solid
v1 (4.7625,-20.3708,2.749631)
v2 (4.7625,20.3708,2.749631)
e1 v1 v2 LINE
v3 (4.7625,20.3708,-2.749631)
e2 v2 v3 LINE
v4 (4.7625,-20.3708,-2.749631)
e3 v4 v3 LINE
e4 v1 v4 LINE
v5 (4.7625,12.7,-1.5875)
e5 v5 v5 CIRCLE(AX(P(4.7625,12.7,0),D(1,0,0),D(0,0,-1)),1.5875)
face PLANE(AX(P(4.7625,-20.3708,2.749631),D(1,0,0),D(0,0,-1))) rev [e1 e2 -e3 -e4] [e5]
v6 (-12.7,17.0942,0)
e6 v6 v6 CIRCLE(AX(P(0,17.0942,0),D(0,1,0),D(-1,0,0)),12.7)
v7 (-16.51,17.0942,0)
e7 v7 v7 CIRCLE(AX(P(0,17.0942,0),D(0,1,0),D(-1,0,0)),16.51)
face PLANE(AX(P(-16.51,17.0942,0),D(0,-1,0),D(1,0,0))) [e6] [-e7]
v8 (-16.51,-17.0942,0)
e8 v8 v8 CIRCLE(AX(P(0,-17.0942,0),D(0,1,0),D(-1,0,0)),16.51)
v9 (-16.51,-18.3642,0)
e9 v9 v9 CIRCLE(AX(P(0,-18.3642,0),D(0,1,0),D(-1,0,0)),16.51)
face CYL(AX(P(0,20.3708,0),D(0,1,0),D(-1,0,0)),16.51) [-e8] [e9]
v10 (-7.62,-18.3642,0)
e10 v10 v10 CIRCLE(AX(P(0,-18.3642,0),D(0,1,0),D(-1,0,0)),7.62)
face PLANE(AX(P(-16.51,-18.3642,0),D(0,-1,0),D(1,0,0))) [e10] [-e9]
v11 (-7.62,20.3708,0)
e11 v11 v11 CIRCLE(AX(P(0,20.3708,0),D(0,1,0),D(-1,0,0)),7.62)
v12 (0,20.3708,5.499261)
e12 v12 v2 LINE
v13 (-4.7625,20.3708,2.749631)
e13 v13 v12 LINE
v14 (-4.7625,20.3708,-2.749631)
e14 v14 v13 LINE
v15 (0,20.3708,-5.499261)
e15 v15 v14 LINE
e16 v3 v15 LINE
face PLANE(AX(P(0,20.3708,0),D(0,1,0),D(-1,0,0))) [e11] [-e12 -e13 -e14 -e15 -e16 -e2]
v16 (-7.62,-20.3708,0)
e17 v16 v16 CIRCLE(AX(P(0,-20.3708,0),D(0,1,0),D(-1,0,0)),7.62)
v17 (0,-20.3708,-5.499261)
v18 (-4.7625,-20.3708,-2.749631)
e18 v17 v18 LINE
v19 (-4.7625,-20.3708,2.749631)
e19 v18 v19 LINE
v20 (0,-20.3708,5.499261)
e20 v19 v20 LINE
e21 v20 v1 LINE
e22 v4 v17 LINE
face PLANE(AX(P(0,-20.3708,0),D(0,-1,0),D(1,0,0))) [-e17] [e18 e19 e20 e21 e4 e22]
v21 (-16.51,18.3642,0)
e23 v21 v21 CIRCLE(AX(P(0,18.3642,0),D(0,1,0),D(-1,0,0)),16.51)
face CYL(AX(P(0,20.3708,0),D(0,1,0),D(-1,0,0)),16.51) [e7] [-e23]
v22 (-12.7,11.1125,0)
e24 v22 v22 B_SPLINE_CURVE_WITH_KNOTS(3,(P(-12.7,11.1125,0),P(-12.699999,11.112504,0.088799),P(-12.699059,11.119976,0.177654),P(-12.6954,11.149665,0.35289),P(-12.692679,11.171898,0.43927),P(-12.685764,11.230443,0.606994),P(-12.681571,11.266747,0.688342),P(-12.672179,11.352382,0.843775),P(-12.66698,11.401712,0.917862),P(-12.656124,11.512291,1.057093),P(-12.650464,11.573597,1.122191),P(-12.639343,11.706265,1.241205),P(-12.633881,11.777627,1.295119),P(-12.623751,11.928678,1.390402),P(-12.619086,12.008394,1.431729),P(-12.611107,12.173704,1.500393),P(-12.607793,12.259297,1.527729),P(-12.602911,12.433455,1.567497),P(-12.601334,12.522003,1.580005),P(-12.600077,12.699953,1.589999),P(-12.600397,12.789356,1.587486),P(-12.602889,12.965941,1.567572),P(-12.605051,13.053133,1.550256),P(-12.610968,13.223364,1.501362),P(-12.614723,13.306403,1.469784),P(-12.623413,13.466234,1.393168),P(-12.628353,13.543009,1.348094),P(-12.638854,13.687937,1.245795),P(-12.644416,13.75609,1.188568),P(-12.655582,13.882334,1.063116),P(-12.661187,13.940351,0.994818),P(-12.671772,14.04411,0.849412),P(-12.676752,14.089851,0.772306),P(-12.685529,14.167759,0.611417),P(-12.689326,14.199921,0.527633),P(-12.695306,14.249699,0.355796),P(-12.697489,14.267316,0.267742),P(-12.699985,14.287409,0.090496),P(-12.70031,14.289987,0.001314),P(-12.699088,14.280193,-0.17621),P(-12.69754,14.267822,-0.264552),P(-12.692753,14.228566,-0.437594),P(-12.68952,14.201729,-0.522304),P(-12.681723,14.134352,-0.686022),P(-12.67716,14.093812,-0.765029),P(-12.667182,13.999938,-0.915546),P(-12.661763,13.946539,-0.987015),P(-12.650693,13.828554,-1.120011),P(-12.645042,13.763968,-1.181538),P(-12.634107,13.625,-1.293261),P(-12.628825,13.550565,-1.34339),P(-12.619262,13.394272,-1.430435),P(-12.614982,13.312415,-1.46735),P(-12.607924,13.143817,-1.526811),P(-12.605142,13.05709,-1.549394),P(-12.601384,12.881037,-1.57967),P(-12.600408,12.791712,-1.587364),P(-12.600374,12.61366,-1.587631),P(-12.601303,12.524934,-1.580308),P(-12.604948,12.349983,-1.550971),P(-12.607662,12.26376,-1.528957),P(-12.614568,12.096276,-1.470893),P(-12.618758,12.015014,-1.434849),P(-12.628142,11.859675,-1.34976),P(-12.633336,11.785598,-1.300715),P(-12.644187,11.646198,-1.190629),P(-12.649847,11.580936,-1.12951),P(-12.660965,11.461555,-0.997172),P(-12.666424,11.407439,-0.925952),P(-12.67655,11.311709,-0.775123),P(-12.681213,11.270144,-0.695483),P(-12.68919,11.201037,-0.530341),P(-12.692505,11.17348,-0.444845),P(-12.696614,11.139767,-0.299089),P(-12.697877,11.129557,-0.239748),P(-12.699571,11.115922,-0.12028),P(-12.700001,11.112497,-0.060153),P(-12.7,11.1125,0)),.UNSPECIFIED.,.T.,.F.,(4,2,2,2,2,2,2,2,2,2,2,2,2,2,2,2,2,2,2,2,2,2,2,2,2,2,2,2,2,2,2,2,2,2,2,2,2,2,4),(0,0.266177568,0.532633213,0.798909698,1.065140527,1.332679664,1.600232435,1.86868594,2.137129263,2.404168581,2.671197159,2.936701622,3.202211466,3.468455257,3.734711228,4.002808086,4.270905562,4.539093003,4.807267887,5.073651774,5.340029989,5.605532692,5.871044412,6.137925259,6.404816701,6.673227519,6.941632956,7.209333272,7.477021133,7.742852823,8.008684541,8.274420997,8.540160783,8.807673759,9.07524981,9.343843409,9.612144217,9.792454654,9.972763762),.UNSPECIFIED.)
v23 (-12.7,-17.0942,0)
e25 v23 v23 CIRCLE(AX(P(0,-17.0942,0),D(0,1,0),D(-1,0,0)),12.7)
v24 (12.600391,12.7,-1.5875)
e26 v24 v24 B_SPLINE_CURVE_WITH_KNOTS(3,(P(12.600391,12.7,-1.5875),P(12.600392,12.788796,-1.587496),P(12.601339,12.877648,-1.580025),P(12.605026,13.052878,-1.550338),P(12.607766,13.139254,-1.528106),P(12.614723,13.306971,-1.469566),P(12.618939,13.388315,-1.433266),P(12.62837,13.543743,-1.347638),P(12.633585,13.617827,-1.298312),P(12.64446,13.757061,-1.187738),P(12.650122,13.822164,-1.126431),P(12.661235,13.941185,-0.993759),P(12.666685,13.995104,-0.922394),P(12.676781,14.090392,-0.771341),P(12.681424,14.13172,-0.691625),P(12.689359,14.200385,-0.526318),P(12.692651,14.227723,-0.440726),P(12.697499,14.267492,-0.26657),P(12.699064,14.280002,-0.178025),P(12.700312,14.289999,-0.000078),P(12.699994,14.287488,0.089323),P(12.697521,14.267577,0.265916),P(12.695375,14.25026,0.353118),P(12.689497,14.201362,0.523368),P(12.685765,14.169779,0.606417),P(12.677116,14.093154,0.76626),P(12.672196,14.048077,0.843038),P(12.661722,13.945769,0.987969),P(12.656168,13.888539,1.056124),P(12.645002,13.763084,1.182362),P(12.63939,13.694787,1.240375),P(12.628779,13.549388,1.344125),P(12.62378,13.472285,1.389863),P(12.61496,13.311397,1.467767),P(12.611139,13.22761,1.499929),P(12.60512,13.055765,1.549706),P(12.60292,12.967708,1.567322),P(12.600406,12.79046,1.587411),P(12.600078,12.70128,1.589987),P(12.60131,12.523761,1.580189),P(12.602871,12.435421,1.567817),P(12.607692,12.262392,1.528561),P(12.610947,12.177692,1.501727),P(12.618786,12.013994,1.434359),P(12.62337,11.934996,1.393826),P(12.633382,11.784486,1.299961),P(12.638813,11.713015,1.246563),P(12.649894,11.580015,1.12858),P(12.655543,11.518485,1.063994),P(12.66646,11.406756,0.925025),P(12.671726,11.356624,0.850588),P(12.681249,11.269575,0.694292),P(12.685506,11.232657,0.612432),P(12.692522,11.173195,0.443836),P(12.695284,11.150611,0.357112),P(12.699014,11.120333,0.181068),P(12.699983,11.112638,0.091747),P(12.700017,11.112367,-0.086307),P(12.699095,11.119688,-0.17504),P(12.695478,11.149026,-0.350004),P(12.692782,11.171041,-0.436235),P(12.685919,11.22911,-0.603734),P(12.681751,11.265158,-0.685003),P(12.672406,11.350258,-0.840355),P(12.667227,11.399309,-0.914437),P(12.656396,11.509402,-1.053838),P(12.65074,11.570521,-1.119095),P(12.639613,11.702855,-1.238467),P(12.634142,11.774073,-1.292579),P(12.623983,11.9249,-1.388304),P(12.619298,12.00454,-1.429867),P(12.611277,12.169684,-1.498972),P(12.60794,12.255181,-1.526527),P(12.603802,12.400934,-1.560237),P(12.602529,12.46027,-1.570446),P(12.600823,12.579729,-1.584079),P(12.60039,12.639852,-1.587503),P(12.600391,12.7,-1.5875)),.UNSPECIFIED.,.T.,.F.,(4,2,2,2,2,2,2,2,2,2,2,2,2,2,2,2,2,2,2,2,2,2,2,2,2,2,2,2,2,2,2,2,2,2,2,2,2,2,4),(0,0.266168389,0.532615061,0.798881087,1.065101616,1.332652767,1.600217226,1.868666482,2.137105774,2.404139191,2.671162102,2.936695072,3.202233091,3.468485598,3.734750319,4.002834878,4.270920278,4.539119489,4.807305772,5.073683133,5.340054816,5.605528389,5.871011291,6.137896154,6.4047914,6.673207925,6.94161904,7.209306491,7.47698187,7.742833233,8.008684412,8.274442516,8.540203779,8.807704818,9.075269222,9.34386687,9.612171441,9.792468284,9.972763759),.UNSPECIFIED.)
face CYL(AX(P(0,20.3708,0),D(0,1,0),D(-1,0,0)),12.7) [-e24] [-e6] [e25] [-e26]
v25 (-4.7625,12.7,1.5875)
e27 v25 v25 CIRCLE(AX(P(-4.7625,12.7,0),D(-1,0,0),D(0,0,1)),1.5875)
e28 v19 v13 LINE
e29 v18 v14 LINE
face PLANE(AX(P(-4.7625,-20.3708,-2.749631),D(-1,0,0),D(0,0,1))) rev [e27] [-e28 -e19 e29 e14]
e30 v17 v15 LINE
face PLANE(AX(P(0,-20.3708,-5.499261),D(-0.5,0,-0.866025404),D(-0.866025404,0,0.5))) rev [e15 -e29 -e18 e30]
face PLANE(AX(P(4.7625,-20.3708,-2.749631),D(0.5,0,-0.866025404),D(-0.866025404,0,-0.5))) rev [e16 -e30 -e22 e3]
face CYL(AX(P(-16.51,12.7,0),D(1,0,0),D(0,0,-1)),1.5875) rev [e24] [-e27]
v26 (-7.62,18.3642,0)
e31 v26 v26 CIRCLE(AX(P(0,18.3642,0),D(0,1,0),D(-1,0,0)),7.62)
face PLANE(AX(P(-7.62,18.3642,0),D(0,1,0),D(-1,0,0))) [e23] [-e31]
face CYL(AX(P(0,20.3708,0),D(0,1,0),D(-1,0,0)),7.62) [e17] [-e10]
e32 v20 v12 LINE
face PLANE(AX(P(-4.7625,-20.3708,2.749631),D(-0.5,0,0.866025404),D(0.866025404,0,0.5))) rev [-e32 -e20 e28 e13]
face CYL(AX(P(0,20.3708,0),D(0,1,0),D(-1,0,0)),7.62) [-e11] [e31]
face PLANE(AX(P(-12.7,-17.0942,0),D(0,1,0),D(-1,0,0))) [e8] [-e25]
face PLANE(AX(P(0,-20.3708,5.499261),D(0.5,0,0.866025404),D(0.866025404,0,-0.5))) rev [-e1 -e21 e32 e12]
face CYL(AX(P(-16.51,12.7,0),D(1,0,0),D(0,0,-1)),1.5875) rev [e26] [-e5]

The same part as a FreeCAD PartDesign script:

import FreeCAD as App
import Part
import Sketcher
Q = App.Units.Quantity

doc = App.newDocument("Part")
body = doc.addObject("PartDesign::Body", "Body")

# Sketch on XY plane
sketch1 = body.newObject("Sketcher::SketchObject", "Sketch")
sketch1.AttachmentSupport = (doc.getObject("XY_Plane"), [""])
sketch1.MapMode = "FlatFace"
sketch1.addGeometry([
    Part.LineSegment(App.Vector(-7.6, 18.4, 0), App.Vector(-16.5, 18.4, 0)),  # 0
    Part.LineSegment(App.Vector(-16.5, 18.4, 0), App.Vector(-16.5, 17.1, 0)),  # 1
    Part.LineSegment(App.Vector(-16.5, 17.1, 0), App.Vector(-12.7, 17.1, 0)),  # 2
    Part.LineSegment(App.Vector(-12.7, 17.1, 0), App.Vector(-12.7, -17.1, 0)),  # 3
    Part.LineSegment(App.Vector(-12.7, -17.1, 0), App.Vector(-16.5, -17.1, 0)),  # 4
    Part.LineSegment(App.Vector(-16.5, -17.1, 0), App.Vector(-16.5, -18.4, 0)),  # 5
    Part.LineSegment(App.Vector(-16.5, -18.4, 0), App.Vector(-7.6, -18.4, 0)),  # 6
    Part.LineSegment(App.Vector(-7.6, -18.4, 0), App.Vector(-7.6, -20.4, 0)),  # 7
    Part.LineSegment(App.Vector(-7.6, -20.4, 0), App.Vector(0, -20.4, 0)),  # 8
    Part.LineSegment(App.Vector(0, -20.4, 0), App.Vector(0, 20.4, 0)),  # 9
    Part.LineSegment(App.Vector(0, 20.4, 0), App.Vector(-7.6, 20.4, 0)),  # 10
    Part.LineSegment(App.Vector(-7.6, 20.4, 0), App.Vector(-7.6, 18.4, 0)),  # 11
], False)
sketch1.addConstraint([
    Sketcher.Constraint("Coincident", 0, 2, 1, 1),
    Sketcher.Constraint("Coincident", 1, 2, 2, 1),
    Sketcher.Constraint("Coincident", 2, 2, 3, 1),
    Sketcher.Constraint("Coincident", 3, 2, 4, 1),
    Sketcher.Constraint("Coincident", 4, 2, 5, 1),
    Sketcher.Constraint("Coincident", 5, 2, 6, 1),
    Sketcher.Constraint("Coincident", 6, 2, 7, 1),
    Sketcher.Constraint("Coincident", 7, 2, 8, 1),
    Sketcher.Constraint("Coincident", 8, 2, 9, 1),
    Sketcher.Constraint("Coincident", 9, 2, 10, 1),
    Sketcher.Constraint("Coincident", 10, 2, 11, 1),
    Sketcher.Constraint("Coincident", 11, 2, 0, 1),
    Sketcher.Constraint("Horizontal", 0),
    Sketcher.Constraint("Vertical", 1),
    Sketcher.Constraint("Horizontal", 2),
    Sketcher.Constraint("Vertical", 3),
    Sketcher.Constraint("Horizontal", 4),
    Sketcher.Constraint("Vertical", 5),
    Sketcher.Constraint("Horizontal", 6),
    Sketcher.Constraint("Vertical", 7),
    Sketcher.Constraint("Horizontal", 8),
    Sketcher.Constraint("Vertical", 9),
    Sketcher.Constraint("Horizontal", 10),
    Sketcher.Constraint("Vertical", 11),
    Sketcher.Constraint("Symmetric", 8, 2, 9, 2, -1, 1),
    Sketcher.Constraint("Symmetric", 1, 2, 4, 2, -1),
    Sketcher.Constraint("Symmetric", 6, 2, 11, 2, -1),
    Sketcher.Constraint("DistanceX", 8, 1, 8, 2, Q("0.3 in")),
    Sketcher.Constraint("DistanceX", 0, 2, 0, 1, Q("0.35 in")),
    Sketcher.Constraint("DistanceX", 2, 1, 2, 2, Q("0.15 in")),
    Sketcher.Constraint("DistanceY", 1, 2, 1, 1, Q("0.05 in")),
    Sketcher.Constraint("DistanceY", 3, 2, 3, 1, Q("1.346 in")),
    Sketcher.Constraint("DistanceY", 7, 2, 7, 1, Q("0.079 in")),
])
revolution = body.newObject("PartDesign::Revolution", "Revolution")
revolution.Profile = sketch1
revolution.ReferenceAxis = (sketch1, ["V_Axis"])
revolution.Angle = 360

# Sketch on XZ plane
sketch2 = body.newObject("Sketcher::SketchObject", "Sketch001")
sketch2.AttachmentSupport = (doc.getObject("XZ_Plane"), [""])
sketch2.MapMode = "FlatFace"
sketch2.AttachmentOffset = App.Placement(App.Vector(0, 0, -0.802 * 25.4), App.Rotation())
sketch2.addGeometry([
    Part.LineSegment(App.Vector(0, -5, 0), App.Vector(-5, -3, 0)),  # 0
    Part.LineSegment(App.Vector(-5, -3, 0), App.Vector(-5, 3, 0)),  # 1
    Part.LineSegment(App.Vector(-5, 3, 0), App.Vector(0, 5, 0)),  # 2
    Part.LineSegment(App.Vector(0, 5, 0), App.Vector(5, 3, 0)),  # 3
    Part.LineSegment(App.Vector(5, 3, 0), App.Vector(5, -3, 0)),  # 4
    Part.LineSegment(App.Vector(5, -3, 0), App.Vector(0, -5, 0)),  # 5
], False)
sketch2.addConstraint([
    Sketcher.Constraint("Coincident", 0, 2, 1, 1),
    Sketcher.Constraint("Coincident", 1, 2, 2, 1),
    Sketcher.Constraint("Coincident", 2, 2, 3, 1),
    Sketcher.Constraint("Coincident", 3, 2, 4, 1),
    Sketcher.Constraint("Coincident", 4, 2, 5, 1),
    Sketcher.Constraint("Coincident", 5, 2, 0, 1),
    Sketcher.Constraint("Vertical", 1),
    Sketcher.Constraint("Vertical", 4),
    Sketcher.Constraint("Symmetric", 0, 2, 3, 2, -1, 1),
    Sketcher.Constraint("Symmetric", 2, 2, 5, 2, -1, 1),
    Sketcher.Constraint("PointOnObject", 2, 2, -2),
    Sketcher.Constraint("Parallel", 2, 5),
    Sketcher.Constraint("Horizontal", 1, 2, 3, 2),
    Sketcher.Constraint("Angle", 0, Q("150 deg")),
    Sketcher.Constraint("DistanceX", 0, 2, -1, 1, Q("0.1875 in")),
    Sketcher.Constraint("DistanceY", 1, 1, 1, 2, 5.499261),
])
pocket1 = body.newObject("PartDesign::Pocket", "Pocket")
pocket1.Profile = sketch2
pocket1.Type = "ThroughAll"
pocket1.Reversed = True

# Sketch on YZ plane
sketch3 = body.newObject("Sketcher::SketchObject", "Sketch002")
sketch3.AttachmentSupport = (doc.getObject("YZ_Plane"), [""])
sketch3.MapMode = "FlatFace"
sketch3.addGeometry(Part.Circle(App.Vector(12.7, 0, 0), App.Vector(0, 0, 1), 1.6), False)
sketch3.addConstraint([
    Sketcher.Constraint("PointOnObject", 0, 3, -1),
    Sketcher.Constraint("Diameter", 0, Q("0.125 in")),
    Sketcher.Constraint("DistanceX", -1, 1, 0, 3, Q("0.5 in")),
])
pocket2 = body.newObject("PartDesign::Pocket", "Pocket001")
pocket2.Profile = sketch3
pocket2.Type = "ThroughAll"
pocket2.Midplane = True

doc.recompute()
